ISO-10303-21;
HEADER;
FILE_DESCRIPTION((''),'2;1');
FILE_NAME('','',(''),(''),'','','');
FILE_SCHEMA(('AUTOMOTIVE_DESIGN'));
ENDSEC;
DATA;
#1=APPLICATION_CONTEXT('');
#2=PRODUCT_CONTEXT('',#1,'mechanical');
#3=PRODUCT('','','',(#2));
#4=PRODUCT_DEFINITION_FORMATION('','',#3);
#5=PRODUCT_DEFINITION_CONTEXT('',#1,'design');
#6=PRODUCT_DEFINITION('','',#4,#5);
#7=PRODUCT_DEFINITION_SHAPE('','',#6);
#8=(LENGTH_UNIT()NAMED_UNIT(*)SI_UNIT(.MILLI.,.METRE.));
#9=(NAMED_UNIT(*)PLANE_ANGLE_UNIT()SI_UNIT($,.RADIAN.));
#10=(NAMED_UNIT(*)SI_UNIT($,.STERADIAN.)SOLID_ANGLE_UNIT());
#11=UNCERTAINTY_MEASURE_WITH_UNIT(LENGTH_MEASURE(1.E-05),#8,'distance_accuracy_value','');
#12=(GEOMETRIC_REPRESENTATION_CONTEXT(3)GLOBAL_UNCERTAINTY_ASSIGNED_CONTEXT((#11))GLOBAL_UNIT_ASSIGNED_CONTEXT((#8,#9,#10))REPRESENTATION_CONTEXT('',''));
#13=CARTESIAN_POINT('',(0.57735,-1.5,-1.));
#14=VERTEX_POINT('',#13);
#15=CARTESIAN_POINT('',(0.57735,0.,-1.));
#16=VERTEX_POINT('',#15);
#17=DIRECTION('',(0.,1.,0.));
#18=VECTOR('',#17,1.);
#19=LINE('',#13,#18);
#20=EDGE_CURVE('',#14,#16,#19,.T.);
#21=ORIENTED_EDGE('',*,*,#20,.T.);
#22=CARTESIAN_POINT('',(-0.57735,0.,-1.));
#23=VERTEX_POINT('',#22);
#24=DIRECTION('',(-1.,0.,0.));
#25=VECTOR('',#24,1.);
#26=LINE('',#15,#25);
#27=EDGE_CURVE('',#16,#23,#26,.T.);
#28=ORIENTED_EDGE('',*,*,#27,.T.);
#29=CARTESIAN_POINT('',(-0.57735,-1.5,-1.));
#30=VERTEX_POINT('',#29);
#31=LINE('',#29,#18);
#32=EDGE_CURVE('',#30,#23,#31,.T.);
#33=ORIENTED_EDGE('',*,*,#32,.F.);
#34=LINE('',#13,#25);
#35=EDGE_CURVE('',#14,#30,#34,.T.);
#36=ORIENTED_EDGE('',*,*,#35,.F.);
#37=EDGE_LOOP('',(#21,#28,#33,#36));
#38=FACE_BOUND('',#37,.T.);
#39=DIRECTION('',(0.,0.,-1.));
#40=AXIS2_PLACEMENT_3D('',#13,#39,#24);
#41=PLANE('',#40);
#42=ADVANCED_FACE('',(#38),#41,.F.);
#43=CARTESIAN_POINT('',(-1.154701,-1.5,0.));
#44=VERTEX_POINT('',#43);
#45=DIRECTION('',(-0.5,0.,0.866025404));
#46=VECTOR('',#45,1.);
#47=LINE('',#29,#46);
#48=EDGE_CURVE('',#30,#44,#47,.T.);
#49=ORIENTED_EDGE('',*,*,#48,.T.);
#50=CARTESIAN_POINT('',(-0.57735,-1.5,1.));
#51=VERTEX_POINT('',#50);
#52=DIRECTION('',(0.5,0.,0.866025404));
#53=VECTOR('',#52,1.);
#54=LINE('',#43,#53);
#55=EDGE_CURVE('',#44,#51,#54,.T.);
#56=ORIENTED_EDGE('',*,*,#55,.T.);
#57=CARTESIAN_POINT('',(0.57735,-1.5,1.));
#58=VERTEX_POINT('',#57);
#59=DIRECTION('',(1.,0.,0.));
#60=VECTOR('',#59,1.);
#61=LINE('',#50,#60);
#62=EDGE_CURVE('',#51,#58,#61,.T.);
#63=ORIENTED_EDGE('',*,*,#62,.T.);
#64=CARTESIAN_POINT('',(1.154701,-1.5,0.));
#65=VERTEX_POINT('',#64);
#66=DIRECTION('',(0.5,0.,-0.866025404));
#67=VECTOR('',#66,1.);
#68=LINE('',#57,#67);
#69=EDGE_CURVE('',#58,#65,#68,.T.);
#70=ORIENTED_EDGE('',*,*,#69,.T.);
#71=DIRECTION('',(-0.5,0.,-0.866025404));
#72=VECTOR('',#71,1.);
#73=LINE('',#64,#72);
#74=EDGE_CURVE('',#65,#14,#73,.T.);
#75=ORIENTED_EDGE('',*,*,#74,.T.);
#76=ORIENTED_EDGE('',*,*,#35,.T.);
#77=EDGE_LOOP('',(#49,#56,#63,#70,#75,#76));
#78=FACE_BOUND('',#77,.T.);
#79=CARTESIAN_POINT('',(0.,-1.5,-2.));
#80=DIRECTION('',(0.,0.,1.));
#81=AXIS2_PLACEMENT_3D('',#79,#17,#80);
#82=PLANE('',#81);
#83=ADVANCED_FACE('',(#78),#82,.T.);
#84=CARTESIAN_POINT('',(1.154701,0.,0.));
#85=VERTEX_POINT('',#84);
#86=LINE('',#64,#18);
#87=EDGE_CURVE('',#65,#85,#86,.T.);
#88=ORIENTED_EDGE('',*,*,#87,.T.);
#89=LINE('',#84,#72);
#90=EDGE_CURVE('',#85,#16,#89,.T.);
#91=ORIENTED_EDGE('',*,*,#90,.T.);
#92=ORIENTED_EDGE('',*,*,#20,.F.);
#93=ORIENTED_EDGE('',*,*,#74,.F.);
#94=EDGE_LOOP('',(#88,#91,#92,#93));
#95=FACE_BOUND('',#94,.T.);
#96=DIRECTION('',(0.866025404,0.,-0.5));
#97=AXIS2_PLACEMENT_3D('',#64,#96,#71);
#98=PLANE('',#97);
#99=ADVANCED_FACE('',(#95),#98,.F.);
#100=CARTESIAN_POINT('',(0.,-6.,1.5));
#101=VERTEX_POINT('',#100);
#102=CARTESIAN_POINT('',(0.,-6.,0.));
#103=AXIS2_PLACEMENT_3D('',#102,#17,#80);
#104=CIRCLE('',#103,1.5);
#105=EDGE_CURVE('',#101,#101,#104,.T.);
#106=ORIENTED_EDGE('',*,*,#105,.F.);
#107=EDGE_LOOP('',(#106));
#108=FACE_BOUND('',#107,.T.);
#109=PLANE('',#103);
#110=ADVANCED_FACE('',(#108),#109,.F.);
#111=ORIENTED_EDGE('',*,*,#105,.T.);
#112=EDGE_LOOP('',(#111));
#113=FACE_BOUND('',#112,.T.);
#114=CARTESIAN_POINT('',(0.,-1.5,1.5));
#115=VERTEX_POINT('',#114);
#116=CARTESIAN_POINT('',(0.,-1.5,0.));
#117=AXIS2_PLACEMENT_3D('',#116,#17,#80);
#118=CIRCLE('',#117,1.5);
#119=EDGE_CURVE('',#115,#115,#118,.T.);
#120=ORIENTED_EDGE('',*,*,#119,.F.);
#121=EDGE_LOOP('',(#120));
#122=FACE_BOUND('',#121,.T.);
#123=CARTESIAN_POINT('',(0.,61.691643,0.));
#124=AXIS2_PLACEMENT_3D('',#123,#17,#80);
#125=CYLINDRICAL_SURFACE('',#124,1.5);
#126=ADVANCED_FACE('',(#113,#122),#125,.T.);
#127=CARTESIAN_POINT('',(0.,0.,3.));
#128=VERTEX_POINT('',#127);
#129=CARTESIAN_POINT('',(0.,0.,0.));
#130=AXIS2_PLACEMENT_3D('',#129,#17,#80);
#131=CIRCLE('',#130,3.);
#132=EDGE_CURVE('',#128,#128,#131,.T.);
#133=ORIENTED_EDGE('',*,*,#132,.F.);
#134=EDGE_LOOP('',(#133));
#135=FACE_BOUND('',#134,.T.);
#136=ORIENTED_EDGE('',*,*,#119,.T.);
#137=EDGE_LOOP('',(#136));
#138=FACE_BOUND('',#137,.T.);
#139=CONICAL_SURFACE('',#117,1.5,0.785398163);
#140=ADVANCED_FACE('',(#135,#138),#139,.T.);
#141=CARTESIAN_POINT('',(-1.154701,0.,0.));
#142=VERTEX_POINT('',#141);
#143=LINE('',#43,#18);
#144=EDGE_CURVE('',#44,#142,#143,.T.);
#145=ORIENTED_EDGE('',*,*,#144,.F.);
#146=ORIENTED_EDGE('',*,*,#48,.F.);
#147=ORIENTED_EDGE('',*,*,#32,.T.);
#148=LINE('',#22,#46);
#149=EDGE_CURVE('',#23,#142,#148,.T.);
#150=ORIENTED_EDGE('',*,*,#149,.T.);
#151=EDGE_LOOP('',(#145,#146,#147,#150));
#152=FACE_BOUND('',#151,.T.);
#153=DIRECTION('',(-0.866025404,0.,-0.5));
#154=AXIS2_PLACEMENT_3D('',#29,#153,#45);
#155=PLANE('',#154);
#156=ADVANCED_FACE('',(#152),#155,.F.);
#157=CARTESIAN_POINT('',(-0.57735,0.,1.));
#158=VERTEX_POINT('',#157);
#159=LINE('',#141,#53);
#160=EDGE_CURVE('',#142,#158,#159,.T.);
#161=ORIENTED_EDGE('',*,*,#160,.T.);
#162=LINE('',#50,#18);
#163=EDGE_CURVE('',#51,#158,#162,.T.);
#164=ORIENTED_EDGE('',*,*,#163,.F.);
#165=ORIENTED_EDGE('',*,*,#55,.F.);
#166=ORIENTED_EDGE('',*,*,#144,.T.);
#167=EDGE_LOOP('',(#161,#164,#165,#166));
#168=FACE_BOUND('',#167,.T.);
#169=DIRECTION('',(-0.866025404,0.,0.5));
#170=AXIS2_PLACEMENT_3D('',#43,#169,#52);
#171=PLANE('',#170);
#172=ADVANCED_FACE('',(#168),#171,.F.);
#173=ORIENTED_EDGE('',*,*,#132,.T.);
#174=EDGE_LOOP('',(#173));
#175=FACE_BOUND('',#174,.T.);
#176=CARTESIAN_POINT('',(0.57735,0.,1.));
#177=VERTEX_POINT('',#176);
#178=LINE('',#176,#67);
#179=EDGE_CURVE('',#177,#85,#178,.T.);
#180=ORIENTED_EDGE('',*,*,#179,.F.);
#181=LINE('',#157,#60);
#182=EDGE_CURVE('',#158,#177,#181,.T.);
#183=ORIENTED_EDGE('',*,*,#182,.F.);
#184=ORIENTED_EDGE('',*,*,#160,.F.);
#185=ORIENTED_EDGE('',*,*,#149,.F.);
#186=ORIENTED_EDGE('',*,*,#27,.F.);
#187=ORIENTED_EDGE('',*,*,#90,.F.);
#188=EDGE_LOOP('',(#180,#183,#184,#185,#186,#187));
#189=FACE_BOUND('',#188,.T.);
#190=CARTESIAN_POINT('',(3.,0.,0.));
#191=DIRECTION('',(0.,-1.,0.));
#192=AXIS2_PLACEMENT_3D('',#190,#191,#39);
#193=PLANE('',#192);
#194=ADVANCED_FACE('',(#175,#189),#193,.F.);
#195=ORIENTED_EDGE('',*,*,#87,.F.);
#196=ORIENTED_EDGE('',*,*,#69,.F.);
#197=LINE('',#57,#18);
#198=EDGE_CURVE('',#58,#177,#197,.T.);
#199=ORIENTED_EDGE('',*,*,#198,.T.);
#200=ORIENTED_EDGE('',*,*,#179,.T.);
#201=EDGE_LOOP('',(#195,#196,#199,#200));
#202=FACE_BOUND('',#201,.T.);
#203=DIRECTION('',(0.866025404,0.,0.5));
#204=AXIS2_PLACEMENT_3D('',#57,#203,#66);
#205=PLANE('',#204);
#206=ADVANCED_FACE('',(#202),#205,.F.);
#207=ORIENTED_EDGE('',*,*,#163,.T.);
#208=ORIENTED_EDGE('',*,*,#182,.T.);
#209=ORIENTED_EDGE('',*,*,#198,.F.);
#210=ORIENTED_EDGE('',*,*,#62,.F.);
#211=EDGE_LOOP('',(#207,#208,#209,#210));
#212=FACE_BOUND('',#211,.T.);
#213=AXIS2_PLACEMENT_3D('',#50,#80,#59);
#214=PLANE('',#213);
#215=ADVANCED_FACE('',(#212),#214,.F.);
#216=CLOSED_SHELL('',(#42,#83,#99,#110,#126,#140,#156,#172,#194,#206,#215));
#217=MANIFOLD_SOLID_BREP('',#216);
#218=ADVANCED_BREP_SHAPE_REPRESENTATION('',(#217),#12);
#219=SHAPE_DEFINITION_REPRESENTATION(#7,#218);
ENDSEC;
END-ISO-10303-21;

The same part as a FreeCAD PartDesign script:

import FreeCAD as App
import Part
import Sketcher
from FreeCAD import Vector
Q = App.Units.Quantity


def add_polygon(sketch, points):
    """Adds a closed chain of lines whose ends are joined by coincident constraints."""
    first, n = sketch.GeometryCount, len(points)
    for a, b in zip(points, points[1:] + points[:1]):
        sketch.addGeometry(Part.LineSegment(App.Vector(*a, 0), App.Vector(*b, 0)), False)
    for i in range(n):
        sketch.addConstraint(Sketcher.Constraint("Coincident", first + i, 2, first + (i + 1) % n, 1))

doc = App.newDocument("Part")
params = doc.addObject("Spreadsheet::Sheet", "Params")
for row, (alias, value) in enumerate([
    ("sketch1_width", "3 mm"),
    ("sketch1_height", "6 mm"),
    ("sketch1_width2", "1.5 mm"),
    ("revolution_angle", "360 deg"),
    ("pocket1_length", "1.5 mm"),
], start=1):
    params.set(f"A{row}", alias)
    params.set(f"B{row}", "=" + value)
    params.setAlias(f"B{row}", alias)

body = doc.addObject("PartDesign::Body", "Body")

# Sketch on XY plane
sketch1 = doc.addObject("Sketcher::SketchObject", "Sketch")
body.addObject(sketch1)
sketch1.AttachmentSupport = (doc.XY_Plane, [""])
sketch1.MapMode = "FlatFace"
add_polygon(sketch1, [(0, -6), (1.5, -6), (1.5, -1.5), (3, 0), (0, 0)])  # lines 0-4
sketch1.addConstraint([
    Sketcher.Constraint("Horizontal", 0),
    Sketcher.Constraint("Vertical", 1),
    Sketcher.Constraint("Horizontal", 3),
    Sketcher.Constraint("Vertical", 4),
    Sketcher.Constraint("Coincident", 3, 2, -1, 1),
    Sketcher.Constraint("DistanceX", 3, 2, 3, 1, 3.0),
    Sketcher.Constraint("DistanceY", 4, 2, 4, 1, 6.0),
    Sketcher.Constraint("Angle", 2, Q("45 deg")),
    Sketcher.Constraint("DistanceX", 0, 1, 0, 2, 1.5),
])
sketch1.setExpression("Constraints[10]", "Params.sketch1_width")
sketch1.setExpression("Constraints[11]", "Params.sketch1_height")
sketch1.setExpression("Constraints[13]", "Params.sketch1_width2")
revolution = doc.addObject("PartDesign::Revolution", "Revolution")
body.addObject(revolution)
revolution.Profile = sketch1
revolution.ReferenceAxis = (sketch1, ["V_Axis"])
revolution.setExpression("Angle", "Params.revolution_angle")

# Sketch on XZ plane
sketch2 = doc.addObject("Sketcher::SketchObject", "Sketch001")
body.addObject(sketch2)
sketch2.AttachmentSupport = (doc.XZ_Plane, [""])
sketch2.MapMode = "FlatFace"
add_polygon(sketch2, [(0.6, -1), (-0.6, -1), (-1.2, 0), (-0.6, 1), (0.6, 1), (1.2, 0)])  # lines 0-5
sketch2.addConstraint([
    Sketcher.Constraint("Horizontal", 0),
    Sketcher.Constraint("Horizontal", 3),
    Sketcher.Constraint("Symmetric", 0, 2, 3, 2, -1, 1),
    Sketcher.Constraint("Symmetric", 1, 2, 4, 2, -1, 1),
    Sketcher.Constraint("PointOnObject", 1, 2, -1),
    Sketcher.Constraint("Parallel", 2, 5),
    Sketcher.Constraint("Vertical", 0, 2, 2, 2),
    Sketcher.Constraint("Angle", 1, Q("120 deg")),
    Sketcher.Constraint("DistanceY", 0, 2, -1, 1, 1.0),
    Sketcher.Constraint("DistanceX", 0, 2, 0, 1, 1.154701),
])
pocket1 = doc.addObject("PartDesign::Pocket", "Pocket")
body.addObject(pocket1)
pocket1.Profile = sketch2
pocket1.setExpression("Length", "Params.pocket1_length")
pocket1.Reversed = True

doc.recompute()
